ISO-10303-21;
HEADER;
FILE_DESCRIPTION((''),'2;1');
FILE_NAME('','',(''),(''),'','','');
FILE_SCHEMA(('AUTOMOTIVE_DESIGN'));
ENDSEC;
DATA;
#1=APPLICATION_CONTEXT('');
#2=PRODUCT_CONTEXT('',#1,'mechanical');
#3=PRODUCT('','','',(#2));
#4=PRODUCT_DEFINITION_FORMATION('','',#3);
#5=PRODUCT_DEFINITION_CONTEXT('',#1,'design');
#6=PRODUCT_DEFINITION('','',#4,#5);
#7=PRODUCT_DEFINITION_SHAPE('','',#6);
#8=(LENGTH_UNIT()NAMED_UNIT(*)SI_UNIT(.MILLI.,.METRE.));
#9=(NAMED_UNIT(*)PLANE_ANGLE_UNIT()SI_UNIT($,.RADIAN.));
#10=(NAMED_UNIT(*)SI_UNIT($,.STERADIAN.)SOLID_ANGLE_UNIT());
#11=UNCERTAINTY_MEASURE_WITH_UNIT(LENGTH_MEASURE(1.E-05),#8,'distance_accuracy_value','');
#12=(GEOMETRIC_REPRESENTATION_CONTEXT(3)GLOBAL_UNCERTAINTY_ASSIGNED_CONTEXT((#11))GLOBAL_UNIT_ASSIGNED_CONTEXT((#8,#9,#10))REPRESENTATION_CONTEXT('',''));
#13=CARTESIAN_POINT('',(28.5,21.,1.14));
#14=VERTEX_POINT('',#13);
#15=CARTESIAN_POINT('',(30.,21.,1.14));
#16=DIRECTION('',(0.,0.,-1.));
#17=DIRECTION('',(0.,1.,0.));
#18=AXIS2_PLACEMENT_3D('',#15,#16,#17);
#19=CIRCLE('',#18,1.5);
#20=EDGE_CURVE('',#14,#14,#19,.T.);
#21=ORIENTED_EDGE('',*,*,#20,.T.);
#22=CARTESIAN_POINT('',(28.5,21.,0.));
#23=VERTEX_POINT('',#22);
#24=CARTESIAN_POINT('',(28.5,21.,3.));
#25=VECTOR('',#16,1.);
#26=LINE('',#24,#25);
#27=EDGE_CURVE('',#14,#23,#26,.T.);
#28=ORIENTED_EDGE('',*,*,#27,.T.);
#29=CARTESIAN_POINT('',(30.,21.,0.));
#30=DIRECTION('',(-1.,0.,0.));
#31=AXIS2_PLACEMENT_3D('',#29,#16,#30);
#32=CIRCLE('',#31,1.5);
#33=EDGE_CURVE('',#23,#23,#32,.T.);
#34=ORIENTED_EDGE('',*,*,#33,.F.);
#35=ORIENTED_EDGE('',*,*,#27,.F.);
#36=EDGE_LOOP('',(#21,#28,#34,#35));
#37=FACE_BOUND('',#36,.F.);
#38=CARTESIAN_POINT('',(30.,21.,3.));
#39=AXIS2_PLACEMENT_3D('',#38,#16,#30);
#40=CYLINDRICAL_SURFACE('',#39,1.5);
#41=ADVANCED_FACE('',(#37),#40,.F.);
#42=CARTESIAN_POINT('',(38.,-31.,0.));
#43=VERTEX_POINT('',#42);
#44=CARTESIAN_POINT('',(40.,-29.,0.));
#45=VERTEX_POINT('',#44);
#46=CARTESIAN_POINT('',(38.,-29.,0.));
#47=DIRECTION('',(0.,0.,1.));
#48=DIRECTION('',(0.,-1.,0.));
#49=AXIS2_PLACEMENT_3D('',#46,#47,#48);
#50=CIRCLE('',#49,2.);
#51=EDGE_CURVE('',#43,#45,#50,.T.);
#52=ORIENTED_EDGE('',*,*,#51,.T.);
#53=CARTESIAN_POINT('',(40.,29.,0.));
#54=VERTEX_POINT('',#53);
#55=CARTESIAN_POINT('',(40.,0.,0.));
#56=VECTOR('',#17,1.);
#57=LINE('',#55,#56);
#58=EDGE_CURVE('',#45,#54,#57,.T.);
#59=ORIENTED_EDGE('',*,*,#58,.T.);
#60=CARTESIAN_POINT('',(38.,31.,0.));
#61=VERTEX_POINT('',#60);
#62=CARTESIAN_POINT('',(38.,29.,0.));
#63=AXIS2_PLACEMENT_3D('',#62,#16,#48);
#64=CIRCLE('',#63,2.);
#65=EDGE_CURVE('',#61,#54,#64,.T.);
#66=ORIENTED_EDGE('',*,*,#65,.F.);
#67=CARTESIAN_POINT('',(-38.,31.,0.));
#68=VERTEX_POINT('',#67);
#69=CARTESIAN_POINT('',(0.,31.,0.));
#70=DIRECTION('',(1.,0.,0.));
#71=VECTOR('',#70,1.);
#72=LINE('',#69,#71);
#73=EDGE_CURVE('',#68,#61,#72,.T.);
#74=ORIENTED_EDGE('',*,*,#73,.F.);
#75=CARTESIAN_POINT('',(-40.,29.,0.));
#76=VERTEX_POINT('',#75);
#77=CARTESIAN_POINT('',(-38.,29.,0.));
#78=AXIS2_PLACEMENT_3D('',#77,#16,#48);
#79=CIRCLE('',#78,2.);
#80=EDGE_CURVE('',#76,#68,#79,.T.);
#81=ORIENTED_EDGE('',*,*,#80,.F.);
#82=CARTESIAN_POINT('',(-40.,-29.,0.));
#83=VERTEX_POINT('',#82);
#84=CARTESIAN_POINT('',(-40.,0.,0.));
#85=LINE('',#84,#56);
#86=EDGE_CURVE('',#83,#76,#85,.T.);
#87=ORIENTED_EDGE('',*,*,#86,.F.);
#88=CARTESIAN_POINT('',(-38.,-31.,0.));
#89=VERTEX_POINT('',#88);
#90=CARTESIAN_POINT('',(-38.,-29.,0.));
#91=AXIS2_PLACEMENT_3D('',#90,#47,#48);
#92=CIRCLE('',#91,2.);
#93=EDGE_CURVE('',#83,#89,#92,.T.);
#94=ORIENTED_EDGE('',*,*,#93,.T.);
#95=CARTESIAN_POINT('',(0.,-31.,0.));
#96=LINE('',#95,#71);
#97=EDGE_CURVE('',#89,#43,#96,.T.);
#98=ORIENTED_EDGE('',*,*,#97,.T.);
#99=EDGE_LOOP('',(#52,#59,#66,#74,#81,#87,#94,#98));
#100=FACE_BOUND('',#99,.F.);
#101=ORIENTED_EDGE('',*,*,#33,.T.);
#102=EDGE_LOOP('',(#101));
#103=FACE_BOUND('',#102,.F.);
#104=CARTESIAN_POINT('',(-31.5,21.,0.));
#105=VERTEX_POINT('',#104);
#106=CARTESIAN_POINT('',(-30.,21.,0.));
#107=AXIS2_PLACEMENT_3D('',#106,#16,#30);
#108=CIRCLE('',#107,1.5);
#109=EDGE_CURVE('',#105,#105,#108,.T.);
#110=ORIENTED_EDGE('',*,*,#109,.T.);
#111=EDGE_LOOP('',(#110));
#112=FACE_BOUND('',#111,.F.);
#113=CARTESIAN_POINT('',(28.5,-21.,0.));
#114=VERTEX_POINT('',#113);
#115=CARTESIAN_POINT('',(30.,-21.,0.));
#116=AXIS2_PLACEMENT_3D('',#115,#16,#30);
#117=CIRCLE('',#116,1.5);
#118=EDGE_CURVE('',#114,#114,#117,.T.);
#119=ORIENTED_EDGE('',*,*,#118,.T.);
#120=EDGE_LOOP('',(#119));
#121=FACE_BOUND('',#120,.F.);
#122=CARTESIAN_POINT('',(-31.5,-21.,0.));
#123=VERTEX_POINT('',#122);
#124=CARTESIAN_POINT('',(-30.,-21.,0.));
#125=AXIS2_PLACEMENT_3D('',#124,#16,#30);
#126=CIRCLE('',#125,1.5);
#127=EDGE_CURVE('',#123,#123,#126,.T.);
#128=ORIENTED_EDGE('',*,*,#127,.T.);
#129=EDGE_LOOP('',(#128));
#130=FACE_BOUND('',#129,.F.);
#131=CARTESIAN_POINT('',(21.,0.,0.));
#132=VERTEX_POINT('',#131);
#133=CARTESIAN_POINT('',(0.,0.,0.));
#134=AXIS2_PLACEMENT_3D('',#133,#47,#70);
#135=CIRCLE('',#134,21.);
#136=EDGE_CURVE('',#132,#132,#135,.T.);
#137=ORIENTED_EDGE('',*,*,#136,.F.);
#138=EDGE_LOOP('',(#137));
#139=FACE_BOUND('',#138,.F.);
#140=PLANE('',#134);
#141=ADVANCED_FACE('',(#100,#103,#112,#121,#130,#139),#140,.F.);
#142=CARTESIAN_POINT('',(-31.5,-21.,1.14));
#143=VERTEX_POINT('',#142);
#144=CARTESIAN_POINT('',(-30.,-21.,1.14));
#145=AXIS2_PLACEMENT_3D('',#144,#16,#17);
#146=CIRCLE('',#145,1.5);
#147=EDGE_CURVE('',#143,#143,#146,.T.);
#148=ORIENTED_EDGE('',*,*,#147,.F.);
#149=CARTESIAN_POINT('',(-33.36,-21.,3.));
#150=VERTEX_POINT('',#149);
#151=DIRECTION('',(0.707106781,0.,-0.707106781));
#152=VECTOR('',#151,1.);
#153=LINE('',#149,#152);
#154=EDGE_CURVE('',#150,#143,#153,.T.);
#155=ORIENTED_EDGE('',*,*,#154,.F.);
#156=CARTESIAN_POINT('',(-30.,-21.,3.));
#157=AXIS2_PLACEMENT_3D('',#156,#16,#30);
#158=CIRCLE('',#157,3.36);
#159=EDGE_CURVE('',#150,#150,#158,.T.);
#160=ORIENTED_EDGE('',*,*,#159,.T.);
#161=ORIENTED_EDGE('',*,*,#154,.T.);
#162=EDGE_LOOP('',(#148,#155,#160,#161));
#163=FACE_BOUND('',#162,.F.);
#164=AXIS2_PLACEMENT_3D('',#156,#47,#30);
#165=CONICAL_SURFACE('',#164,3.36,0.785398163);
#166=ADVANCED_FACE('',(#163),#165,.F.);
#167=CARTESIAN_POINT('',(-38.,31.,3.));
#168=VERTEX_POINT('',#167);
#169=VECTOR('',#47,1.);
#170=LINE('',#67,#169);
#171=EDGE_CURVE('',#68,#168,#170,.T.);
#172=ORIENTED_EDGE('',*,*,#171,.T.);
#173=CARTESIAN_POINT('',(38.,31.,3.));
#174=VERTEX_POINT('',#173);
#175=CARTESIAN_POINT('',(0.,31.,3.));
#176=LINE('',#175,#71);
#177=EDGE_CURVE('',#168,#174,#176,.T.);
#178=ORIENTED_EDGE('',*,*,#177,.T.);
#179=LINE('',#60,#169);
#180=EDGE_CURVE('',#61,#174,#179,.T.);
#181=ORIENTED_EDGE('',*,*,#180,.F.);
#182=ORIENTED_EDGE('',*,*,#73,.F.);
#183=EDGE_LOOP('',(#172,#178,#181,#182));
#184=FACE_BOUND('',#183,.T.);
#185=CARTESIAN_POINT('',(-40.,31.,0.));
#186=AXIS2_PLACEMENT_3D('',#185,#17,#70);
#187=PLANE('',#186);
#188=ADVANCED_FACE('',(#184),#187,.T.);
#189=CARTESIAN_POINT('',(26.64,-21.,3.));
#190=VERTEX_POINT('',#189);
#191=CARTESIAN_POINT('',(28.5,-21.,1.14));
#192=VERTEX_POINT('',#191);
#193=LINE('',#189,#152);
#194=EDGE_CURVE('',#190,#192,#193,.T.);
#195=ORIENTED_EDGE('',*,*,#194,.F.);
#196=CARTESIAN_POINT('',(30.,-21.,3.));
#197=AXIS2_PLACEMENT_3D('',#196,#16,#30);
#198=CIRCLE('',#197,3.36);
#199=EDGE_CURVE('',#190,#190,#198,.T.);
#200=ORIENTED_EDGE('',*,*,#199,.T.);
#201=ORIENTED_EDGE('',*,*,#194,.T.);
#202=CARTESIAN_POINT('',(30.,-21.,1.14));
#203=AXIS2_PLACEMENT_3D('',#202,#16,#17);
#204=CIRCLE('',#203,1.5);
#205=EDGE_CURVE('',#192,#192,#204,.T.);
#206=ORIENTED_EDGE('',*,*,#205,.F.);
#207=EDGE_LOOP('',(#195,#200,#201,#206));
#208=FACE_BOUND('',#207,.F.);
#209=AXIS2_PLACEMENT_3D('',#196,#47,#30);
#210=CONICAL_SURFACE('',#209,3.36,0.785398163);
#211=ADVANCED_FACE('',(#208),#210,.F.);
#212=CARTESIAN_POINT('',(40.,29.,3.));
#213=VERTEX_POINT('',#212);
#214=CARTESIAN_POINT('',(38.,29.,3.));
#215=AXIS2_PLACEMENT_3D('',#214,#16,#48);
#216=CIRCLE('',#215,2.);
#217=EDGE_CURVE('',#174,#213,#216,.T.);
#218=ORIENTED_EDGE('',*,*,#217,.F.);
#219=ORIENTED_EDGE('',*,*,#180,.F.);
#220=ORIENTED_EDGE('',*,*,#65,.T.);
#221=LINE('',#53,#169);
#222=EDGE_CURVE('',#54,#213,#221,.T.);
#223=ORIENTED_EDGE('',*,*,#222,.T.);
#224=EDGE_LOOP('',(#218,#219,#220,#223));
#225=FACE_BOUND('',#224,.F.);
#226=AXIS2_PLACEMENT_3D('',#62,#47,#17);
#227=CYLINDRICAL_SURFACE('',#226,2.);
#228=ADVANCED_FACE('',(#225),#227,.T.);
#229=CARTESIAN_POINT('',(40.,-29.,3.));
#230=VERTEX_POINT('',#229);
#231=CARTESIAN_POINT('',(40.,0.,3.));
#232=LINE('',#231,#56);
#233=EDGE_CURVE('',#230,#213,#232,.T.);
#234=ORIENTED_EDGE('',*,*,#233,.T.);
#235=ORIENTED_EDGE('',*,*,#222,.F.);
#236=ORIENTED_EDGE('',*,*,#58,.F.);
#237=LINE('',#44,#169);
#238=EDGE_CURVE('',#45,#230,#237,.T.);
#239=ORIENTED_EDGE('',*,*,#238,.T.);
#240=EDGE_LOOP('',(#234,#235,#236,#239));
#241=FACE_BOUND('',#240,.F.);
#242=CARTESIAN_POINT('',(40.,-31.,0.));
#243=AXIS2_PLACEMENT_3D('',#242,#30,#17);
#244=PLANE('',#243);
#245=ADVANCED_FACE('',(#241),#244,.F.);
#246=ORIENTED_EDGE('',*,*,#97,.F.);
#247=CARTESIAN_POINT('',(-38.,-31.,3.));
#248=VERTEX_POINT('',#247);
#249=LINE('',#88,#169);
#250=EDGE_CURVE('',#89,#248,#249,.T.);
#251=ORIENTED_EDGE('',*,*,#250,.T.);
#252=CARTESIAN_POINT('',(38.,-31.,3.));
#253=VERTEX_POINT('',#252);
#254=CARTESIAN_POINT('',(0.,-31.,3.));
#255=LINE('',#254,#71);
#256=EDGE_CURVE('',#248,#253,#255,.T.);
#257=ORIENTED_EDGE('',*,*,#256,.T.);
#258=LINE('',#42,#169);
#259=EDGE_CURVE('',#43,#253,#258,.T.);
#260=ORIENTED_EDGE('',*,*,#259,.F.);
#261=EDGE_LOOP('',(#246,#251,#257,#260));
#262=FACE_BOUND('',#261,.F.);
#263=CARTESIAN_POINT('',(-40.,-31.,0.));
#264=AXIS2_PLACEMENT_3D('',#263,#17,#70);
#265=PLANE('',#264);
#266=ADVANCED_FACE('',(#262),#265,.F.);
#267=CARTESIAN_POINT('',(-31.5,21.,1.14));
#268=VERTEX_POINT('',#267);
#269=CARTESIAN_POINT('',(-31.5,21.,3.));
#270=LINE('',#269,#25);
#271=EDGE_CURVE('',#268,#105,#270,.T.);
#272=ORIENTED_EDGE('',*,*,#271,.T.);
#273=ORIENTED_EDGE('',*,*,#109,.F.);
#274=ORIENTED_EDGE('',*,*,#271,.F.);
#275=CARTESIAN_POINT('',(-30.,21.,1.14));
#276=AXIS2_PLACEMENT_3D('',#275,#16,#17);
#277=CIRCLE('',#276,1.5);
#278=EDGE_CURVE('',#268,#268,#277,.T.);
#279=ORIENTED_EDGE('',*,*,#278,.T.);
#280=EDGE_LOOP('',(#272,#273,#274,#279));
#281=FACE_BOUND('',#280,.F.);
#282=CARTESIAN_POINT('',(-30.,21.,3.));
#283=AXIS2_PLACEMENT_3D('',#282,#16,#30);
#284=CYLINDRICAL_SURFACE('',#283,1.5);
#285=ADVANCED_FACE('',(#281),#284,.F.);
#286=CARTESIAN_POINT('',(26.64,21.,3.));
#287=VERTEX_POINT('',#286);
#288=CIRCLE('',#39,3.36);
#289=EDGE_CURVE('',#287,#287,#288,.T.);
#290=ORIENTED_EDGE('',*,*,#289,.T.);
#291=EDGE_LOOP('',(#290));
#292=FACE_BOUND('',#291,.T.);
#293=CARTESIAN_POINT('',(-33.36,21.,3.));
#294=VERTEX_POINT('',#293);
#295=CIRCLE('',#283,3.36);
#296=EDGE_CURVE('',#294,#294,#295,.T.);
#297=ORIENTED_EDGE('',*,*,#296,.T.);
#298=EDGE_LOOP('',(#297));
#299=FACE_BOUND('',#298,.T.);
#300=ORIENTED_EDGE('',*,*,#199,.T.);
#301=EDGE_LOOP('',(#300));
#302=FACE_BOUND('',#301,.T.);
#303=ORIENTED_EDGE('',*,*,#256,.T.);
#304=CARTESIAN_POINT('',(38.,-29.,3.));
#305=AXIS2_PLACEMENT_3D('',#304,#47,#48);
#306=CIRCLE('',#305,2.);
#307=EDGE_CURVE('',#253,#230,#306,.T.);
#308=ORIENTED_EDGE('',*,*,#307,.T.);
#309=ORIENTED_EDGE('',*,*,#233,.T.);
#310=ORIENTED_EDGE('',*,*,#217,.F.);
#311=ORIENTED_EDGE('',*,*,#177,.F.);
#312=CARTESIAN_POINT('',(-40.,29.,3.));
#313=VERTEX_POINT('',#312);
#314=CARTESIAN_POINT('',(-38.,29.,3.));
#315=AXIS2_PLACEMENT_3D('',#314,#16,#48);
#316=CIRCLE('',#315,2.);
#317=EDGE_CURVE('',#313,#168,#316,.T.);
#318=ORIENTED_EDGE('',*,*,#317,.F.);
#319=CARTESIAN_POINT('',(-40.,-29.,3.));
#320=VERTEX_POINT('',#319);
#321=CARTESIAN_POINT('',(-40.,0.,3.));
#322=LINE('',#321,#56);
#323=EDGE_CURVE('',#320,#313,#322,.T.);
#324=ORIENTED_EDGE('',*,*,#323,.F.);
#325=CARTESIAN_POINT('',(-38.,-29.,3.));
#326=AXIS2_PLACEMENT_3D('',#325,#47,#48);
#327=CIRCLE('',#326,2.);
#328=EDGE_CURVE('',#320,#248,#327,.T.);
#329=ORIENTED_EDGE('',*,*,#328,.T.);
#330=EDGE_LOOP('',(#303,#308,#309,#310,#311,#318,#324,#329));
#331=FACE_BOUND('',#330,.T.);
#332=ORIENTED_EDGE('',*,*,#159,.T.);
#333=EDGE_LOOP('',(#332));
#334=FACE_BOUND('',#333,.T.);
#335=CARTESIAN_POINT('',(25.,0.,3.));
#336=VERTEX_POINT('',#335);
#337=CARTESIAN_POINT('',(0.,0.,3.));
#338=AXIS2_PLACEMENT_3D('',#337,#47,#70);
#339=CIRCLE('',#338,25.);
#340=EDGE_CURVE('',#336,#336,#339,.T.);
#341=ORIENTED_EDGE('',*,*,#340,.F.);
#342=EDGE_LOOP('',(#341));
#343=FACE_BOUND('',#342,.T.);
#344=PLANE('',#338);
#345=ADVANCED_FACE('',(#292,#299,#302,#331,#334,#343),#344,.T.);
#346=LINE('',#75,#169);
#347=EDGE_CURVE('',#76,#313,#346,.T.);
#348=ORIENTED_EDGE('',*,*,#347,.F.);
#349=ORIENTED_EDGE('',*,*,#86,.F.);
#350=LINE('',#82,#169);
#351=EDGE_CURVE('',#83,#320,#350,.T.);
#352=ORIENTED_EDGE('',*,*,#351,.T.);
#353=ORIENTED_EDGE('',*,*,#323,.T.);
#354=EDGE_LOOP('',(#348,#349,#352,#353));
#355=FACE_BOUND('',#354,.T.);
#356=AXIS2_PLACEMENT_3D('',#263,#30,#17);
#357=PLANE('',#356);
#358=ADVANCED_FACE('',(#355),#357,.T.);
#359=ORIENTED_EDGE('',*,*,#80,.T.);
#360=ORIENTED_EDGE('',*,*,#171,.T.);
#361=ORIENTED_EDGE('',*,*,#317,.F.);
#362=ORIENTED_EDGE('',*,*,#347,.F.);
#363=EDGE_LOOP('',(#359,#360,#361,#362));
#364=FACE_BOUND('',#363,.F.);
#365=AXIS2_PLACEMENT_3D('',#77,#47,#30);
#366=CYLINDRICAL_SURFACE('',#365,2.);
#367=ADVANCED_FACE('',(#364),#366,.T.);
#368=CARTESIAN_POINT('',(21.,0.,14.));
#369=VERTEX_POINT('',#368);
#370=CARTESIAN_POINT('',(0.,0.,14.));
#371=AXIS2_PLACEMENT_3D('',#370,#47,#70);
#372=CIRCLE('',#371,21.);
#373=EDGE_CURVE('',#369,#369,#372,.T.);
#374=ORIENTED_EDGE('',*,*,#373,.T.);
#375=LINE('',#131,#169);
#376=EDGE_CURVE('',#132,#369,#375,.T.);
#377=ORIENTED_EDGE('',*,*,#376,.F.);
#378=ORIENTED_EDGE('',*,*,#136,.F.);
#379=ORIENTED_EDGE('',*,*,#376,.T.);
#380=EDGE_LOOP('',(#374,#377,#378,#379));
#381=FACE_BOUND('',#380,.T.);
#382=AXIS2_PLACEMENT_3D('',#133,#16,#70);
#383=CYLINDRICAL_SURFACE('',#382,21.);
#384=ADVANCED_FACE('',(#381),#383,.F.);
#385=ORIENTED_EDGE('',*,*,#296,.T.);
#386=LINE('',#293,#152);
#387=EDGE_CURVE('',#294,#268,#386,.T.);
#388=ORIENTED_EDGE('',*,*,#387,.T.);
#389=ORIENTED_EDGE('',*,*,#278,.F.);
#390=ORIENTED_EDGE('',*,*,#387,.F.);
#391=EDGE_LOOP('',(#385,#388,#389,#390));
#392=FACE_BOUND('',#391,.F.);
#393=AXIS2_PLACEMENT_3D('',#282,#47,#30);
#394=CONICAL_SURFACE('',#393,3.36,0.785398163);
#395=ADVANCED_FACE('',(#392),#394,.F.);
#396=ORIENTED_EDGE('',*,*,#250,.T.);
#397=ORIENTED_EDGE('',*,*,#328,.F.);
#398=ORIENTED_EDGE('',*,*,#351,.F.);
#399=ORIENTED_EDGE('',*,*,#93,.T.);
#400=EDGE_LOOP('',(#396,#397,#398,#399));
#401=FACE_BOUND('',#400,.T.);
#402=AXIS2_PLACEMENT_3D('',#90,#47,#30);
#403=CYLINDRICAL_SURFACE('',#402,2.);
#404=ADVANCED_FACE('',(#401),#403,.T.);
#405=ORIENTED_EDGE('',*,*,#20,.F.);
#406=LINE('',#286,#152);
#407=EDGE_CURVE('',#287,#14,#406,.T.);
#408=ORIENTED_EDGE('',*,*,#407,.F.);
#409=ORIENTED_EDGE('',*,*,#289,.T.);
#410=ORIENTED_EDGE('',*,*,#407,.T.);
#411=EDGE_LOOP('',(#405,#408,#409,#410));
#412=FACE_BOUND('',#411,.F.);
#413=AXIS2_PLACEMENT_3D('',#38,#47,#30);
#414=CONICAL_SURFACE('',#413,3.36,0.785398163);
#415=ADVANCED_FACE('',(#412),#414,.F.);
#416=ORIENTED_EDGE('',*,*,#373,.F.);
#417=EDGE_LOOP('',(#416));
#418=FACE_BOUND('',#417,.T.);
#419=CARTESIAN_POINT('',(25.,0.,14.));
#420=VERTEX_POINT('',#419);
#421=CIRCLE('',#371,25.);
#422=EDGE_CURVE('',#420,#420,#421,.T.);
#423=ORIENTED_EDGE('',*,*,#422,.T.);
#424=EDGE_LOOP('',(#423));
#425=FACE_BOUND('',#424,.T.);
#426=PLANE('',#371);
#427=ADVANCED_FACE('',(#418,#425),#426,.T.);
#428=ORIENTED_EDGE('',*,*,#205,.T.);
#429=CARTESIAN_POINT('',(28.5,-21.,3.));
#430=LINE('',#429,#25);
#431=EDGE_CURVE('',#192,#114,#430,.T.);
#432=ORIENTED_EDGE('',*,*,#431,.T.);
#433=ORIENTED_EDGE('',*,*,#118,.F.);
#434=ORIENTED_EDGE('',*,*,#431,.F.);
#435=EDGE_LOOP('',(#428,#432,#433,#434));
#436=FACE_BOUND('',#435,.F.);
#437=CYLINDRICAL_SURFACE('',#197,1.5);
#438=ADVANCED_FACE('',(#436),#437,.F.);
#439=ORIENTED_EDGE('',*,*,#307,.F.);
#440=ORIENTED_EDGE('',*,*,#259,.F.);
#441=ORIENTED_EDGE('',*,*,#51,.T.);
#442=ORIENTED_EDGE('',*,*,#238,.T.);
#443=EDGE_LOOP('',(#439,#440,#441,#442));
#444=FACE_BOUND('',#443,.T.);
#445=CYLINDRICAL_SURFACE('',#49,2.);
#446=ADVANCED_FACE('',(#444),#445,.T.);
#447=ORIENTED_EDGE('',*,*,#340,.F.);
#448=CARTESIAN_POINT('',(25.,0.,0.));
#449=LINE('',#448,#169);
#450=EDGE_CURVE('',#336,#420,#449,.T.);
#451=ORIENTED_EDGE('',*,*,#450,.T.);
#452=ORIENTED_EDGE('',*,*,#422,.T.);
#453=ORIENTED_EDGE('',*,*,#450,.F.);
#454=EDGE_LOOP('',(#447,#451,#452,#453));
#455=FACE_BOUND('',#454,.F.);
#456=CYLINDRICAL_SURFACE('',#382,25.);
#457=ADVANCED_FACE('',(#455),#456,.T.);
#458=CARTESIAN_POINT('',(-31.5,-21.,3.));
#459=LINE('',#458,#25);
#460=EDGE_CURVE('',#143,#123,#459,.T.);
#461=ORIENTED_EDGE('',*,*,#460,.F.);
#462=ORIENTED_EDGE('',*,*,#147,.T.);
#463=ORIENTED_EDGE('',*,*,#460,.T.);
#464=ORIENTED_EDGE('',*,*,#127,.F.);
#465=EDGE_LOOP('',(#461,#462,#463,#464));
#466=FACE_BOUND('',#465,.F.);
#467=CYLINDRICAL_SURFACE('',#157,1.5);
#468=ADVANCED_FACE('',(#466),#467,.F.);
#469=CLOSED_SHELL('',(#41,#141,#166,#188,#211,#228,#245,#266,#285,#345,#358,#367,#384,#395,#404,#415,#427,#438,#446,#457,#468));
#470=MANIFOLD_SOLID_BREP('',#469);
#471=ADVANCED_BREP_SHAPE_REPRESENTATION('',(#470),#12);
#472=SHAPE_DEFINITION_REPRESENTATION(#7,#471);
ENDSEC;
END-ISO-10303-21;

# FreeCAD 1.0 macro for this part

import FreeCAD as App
import Part
import Sketcher
from FreeCAD import Vector


def edges_at(feature, points):
    """Names of the edges that pass closest to the given points."""
    edges = feature.Shape.Edges
    near = lambda p: min(range(len(edges)), key=lambda i: edges[i].distToShape(Part.Vertex(*p))[0])
    return sorted({f"Edge{near(p) + 1}" for p in points})

doc = App.newDocument("Part")
body = doc.addObject("PartDesign::Body", "Body")

sketch1 = body.newObject("Sketcher::SketchObject", "Sketch")
sketch1.AttachmentSupport = (doc.getObject("XY_Plane"), [""])
sketch1.MapMode = "FlatFace"
sketch1.addGeometry([
    Part.Circle(Vector(0, 0, 0), Vector(0, 0, 1), 25),
    Part.Circle(Vector(0, 0, 0), Vector(0, 0, 1), 21),
], False)
sketch1.addConstraint([
    Sketcher.Constraint("Coincident", 0, 3, -1, 1),
    Sketcher.Constraint("Coincident", 1, 3, -1, 1),
    Sketcher.Constraint("Diameter", 0, 50.0),
    Sketcher.Constraint("Diameter", 1, 42.0),
])
pad1 = body.newObject("PartDesign::Pad", "Pad")
pad1.Profile = sketch1
pad1.Length = 14

sketch2 = body.newObject("Sketcher::SketchObject", "Sketch001")
sketch2.AttachmentSupport = (doc.getObject("XY_Plane"), [""])
sketch2.MapMode = "FlatFace"
sketch2.addGeometry([
    Part.LineSegment(Vector(-40, 31, 0), Vector(-40, -31, 0)),
    Part.LineSegment(Vector(-40, -31, 0), Vector(40, -31, 0)),
    Part.LineSegment(Vector(40, -31, 0), Vector(40, 31, 0)),
    Part.LineSegment(Vector(40, 31, 0), Vector(-40, 31, 0)),
    Part.Circle(Vector(0, 0, 0), Vector(0, 0, 1), 25),
], False)
sketch2.addConstraint([
    Sketcher.Constraint("Coincident", 0, 2, 1, 1),
    Sketcher.Constraint("Coincident", 1, 2, 2, 1),
    Sketcher.Constraint("Coincident", 2, 2, 3, 1),
    Sketcher.Constraint("Coincident", 3, 2, 0, 1),
    Sketcher.Constraint("Vertical", 0),
    Sketcher.Constraint("Horizontal", 1),
    Sketcher.Constraint("Vertical", 2),
    Sketcher.Constraint("Horizontal", 3),
    Sketcher.Constraint("Coincident", 4, 3, -1, 1),
    Sketcher.Constraint("Symmetric", 0, 2, 2, 2, -1, 1),
    Sketcher.Constraint("Diameter", 4, 50.0),
    Sketcher.Constraint("DistanceX", 1, 1, 1, 2, 80.0),
    Sketcher.Constraint("DistanceY", 0, 2, 0, 1, 62.0),
])
pad2 = body.newObject("PartDesign::Pad", "Pad001")
pad2.Profile = sketch2
pad2.Length = 3
doc.recompute()

fillet = body.newObject("PartDesign::Fillet", "Fillet")
fillet.Base = (pad2, edges_at(pad2, [
    (-40, -31, 1.5),
    (40, -31, 1.5),
    (40, 31, 1.5),
    (-40, 31, 1.5),
]))
fillet.Radius = 2

sketch3 = body.newObject("Sketcher::SketchObject", "Sketch002")
sketch3.AttachmentSupport = (doc.getObject("XY_Plane"), [""])
sketch3.MapMode = "FlatFace"
sketch3.AttachmentOffset = App.Placement(Vector(0, 0, 3), App.Rotation())
sketch3.addGeometry([
    Part.Circle(Vector(-30, 21, 0), Vector(0, 0, 1), 1.5),
    Part.Circle(Vector(-30, -21, 0), Vector(0, 0, 1), 1.5),
    Part.Circle(Vector(30, -21, 0), Vector(0, 0, 1), 1.5),
    Part.Circle(Vector(30, 21, 0), Vector(0, 0, 1), 1.5),
], False)
sketch3.addConstraint([
    Sketcher.Constraint("Equal", 0, 1),
    Sketcher.Constraint("Equal", 1, 2),
    Sketcher.Constraint("Equal", 2, 3),
    Sketcher.Constraint("Symmetric", 0, 3, 2, 3, -1, 1),
    Sketcher.Constraint("Symmetric", 1, 3, 3, 3, -1, 1),
    Sketcher.Constraint("Symmetric", 1, 3, 2, 3, -2),
    Sketcher.Constraint("Diameter", 0, 3.0),
    Sketcher.Constraint("DistanceX", 0, 3, -1, 1, 30.0),
    Sketcher.Constraint("DistanceY", -1, 1, 0, 3, 21.0),
])
doc.recompute()
hole = body.newObject("PartDesign::Hole", "Hole")
hole.Profile = sketch3
hole.ThreadType = "None"
hole.Diameter = 3
hole.DepthType = "ThroughAll"
hole.HoleCutType = "Countersink"
hole.HoleCutDiameter = 6.72
hole.HoleCutCountersinkAngle = 90

doc.recompute()
